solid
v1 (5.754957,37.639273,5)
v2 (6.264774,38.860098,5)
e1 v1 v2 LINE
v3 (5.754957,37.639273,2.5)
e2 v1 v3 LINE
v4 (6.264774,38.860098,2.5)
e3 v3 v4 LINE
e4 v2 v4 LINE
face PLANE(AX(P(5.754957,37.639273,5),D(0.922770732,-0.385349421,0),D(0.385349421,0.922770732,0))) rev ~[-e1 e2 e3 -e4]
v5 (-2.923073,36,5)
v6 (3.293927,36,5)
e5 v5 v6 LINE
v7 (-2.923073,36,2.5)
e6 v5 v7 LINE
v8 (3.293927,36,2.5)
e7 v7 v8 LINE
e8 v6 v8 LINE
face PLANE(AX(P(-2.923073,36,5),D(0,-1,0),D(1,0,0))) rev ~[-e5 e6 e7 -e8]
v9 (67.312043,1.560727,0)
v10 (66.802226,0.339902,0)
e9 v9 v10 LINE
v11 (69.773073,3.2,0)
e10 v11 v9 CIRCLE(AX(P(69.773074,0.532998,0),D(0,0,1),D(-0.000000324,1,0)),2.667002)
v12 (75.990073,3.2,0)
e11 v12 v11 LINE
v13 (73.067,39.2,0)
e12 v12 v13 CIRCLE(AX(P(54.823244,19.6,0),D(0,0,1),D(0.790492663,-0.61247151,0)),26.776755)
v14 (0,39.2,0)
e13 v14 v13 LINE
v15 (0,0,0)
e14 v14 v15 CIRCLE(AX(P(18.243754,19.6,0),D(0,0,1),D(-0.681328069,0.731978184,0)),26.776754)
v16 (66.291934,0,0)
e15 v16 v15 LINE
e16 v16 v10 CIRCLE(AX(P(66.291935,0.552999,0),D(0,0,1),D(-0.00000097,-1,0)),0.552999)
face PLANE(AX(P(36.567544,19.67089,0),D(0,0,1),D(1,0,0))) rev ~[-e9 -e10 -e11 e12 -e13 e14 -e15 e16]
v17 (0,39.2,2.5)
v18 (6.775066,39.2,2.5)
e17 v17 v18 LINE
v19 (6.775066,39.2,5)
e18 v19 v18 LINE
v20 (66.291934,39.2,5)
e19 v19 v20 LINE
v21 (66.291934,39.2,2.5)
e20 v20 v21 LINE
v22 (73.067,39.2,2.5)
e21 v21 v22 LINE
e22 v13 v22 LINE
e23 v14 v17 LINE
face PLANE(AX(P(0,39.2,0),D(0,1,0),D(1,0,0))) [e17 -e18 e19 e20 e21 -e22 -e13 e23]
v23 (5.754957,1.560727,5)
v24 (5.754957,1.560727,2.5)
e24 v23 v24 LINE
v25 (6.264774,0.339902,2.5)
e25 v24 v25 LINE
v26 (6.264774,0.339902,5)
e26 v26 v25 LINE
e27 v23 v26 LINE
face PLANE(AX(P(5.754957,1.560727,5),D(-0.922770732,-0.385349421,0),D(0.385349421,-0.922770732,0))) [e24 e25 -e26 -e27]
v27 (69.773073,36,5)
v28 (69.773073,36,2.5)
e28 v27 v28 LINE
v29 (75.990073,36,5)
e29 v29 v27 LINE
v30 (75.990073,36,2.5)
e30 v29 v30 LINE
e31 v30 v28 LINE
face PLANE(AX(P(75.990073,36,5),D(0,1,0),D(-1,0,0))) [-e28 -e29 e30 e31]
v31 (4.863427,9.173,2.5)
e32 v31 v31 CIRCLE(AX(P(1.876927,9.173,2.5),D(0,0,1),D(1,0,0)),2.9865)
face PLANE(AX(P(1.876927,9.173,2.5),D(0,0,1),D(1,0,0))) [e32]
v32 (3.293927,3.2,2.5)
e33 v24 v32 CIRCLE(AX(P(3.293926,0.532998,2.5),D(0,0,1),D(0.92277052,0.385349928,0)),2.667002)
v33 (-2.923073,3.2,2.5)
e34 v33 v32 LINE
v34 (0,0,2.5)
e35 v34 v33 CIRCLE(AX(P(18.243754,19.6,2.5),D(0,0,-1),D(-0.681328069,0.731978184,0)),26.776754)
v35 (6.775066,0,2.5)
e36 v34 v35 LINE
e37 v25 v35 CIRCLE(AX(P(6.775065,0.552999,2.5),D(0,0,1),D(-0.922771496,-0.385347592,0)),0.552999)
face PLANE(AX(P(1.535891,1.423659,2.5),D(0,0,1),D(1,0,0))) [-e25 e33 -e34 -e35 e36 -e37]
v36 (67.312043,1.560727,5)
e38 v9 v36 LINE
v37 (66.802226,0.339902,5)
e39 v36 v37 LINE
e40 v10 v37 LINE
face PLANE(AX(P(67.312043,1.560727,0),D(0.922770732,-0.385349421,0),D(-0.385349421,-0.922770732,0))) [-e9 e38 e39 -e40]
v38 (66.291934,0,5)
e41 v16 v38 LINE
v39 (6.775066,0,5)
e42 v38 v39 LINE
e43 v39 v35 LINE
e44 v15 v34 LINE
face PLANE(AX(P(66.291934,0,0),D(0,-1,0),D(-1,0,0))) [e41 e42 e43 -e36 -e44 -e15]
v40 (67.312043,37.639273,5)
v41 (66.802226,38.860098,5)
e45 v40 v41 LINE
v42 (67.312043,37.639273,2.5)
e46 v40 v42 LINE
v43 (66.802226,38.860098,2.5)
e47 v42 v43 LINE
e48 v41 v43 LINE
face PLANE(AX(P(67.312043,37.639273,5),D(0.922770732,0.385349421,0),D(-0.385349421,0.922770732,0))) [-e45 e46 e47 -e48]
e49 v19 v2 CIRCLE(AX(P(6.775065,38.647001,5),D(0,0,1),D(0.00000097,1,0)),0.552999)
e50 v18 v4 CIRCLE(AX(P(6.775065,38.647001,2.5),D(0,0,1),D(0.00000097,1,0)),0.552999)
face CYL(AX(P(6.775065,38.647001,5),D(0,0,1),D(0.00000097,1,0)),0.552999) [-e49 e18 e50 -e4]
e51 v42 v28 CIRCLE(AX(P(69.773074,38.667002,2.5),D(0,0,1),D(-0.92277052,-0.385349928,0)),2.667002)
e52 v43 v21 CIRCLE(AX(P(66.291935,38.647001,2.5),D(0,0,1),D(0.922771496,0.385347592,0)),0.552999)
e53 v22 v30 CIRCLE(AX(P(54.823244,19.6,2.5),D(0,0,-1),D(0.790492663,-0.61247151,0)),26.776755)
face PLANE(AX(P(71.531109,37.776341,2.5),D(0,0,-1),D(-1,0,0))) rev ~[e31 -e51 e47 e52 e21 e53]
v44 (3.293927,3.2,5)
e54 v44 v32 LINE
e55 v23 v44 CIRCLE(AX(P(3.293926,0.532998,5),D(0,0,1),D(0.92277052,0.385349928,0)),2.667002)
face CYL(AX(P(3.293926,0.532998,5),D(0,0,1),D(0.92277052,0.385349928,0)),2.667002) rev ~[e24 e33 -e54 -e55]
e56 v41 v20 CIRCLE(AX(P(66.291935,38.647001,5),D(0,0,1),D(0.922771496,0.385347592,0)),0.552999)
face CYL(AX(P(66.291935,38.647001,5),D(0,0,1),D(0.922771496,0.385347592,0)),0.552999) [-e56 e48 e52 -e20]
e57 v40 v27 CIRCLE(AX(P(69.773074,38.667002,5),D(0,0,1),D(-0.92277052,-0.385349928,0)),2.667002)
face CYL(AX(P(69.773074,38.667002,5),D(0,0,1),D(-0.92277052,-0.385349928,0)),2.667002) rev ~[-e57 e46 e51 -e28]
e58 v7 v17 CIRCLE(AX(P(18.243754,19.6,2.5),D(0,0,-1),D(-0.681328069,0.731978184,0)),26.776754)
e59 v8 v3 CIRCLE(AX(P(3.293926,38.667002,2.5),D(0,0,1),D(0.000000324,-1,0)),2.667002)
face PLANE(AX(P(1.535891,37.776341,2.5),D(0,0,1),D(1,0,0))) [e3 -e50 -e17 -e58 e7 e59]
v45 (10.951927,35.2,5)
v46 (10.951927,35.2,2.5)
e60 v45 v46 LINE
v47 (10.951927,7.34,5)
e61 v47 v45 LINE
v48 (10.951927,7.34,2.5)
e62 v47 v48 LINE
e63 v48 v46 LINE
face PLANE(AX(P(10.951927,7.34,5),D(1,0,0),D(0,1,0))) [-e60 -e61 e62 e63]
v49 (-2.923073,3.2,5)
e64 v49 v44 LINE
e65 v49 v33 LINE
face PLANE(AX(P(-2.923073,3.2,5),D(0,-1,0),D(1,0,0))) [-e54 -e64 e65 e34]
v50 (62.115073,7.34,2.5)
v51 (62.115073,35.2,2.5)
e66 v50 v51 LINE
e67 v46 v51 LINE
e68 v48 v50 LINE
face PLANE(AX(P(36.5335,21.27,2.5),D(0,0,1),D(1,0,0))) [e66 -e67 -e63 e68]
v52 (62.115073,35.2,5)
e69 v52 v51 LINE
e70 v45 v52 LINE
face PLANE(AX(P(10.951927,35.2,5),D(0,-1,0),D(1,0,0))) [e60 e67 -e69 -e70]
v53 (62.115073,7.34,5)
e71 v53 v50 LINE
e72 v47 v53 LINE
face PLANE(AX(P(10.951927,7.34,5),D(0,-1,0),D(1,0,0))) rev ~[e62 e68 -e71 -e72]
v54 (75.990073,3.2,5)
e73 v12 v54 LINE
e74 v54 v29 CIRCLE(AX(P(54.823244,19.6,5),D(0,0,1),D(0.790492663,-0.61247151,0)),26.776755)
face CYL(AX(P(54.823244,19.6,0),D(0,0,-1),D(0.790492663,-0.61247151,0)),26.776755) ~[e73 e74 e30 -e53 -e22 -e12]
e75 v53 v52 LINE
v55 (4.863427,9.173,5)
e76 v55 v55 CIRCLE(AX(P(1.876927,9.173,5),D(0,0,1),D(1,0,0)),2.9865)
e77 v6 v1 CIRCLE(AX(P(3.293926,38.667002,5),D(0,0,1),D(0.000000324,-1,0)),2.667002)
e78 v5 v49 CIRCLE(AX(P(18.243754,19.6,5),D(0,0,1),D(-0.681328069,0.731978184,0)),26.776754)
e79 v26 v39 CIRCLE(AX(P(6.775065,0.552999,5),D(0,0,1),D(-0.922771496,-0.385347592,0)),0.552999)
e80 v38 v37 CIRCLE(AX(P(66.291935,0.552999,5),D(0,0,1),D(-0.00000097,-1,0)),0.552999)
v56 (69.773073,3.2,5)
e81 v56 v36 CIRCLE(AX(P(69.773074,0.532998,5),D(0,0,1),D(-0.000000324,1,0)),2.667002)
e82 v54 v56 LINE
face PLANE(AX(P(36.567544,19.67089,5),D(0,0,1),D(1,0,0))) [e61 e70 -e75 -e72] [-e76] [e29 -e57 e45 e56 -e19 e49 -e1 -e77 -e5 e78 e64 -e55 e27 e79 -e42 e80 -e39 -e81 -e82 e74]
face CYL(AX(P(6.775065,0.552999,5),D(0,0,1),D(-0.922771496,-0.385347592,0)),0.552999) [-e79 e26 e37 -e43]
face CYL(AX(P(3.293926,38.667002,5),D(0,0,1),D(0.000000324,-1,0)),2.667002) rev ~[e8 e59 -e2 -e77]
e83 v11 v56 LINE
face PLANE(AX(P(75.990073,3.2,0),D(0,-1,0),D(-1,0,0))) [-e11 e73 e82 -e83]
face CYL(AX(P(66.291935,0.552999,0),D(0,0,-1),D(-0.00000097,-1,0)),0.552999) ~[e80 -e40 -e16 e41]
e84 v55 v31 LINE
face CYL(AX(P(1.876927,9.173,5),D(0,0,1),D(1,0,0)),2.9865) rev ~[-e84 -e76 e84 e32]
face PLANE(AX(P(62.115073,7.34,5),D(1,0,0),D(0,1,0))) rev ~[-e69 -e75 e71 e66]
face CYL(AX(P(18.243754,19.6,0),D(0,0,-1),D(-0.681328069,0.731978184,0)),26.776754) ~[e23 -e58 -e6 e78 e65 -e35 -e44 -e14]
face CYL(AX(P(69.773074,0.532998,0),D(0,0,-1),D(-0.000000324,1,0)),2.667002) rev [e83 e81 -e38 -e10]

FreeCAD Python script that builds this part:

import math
import FreeCAD as App
import Part
import Sketcher


def add_polygon(sketch, points):
    """Adds a closed chain of lines whose ends are joined by coincident constraints."""
    first, n = sketch.GeometryCount, len(points)
    for a, b in zip(points, points[1:] + points[:1]):
        sketch.addGeometry(Part.LineSegment(App.Vector(*a, 0), App.Vector(*b, 0)), False)
    for i in range(n):
        sketch.addConstraint(Sketcher.Constraint("Coincident", first + i, 2, first + (i + 1) % n, 1))

doc = App.newDocument("Part")
params = doc.addObject("Spreadsheet::Sheet", "Params")
for row, (alias, value) in enumerate([
    ("pad1_length", "5 mm"),
    ("sketch2_height", "3.2 mm"),
    ("pocket1_length", "2.5 mm"),
    ("sketch3_height", "27.86 mm"),
    ("pocket2_length", "2.5 mm"),
], start=1):
    params.set(f"A{row}", alias)
    params.set(f"B{row}", "=" + value)
    params.setAlias(f"B{row}", alias)

body = doc.addObject("PartDesign::Body", "Body")

# Sketch on XY plane
sketch1 = doc.addObject("Sketcher::SketchObject", "Sketch")
body.addObject(sketch1)
sketch1.AttachmentSupport = (doc.XY_Plane, [""])
sketch1.MapMode = "FlatFace"
sketch1.addGeometry(Part.ArcOfCircle(Part.Circle(App.Vector(18.2, 19.6, 0), App.Vector(0, 0, 1), 26.8), math.radians(133), math.radians(227)), False)
sketch1.addGeometry(Part.LineSegment(App.Vector(0, 0, 0), App.Vector(66.3, 0, 0)), False)
sketch1.addGeometry(Part.ArcOfCircle(Part.Circle(App.Vector(66.3, 0.6, 0), App.Vector(0, 0, 1), 0.6), math.radians(-90), math.radians(-23)), False)
sketch1.addGeometry(Part.LineSegment(App.Vector(66.8, 0.3, 0), App.Vector(67.3, 1.6, 0)), False)
sketch1.addGeometry(Part.ArcOfCircle(Part.Circle(App.Vector(69.8, 0.5, 0), App.Vector(0, 0, 1), 2.7), math.radians(90), math.radians(157)), False)
sketch1.addGeometry(Part.LineSegment(App.Vector(69.8, 3.2, 0), App.Vector(76, 3.2, 0)), False)
sketch1.addGeometry(Part.ArcOfCircle(Part.Circle(App.Vector(54.8, 19.6, 0), App.Vector(0, 0, 1), 26.8), math.radians(-38), math.radians(47)), False)
sketch1.addGeometry(Part.LineSegment(App.Vector(73.1, 39.2, 0), App.Vector(0, 39.2, 0)), False)
sketch1.addConstraint(Sketcher.Constraint("Coincident", 0, 2, 1, 1))
sketch1.addConstraint(Sketcher.Constraint("Tangent", 1, 2, 2, 1))
sketch1.addConstraint(Sketcher.Constraint("Tangent", 2, 2, 3, 1))
sketch1.addConstraint(Sketcher.Constraint("Tangent", 3, 2, 4, 2))
sketch1.addConstraint(Sketcher.Constraint("Tangent", 4, 1, 5, 1))
sketch1.addConstraint(Sketcher.Constraint("Coincident", 5, 2, 6, 1))
sketch1.addConstraint(Sketcher.Constraint("Coincident", 6, 2, 7, 1))
sketch1.addConstraint(Sketcher.Constraint("Coincident", 7, 2, 0, 1))
sketch1.addConstraint(Sketcher.Constraint("Horizontal", 1))
sketch1.addConstraint(Sketcher.Constraint("Horizontal", 5))
sketch1.addConstraint(Sketcher.Constraint("Horizontal", 7))
sketch1.addConstraint(Sketcher.Constraint("Coincident", 0, 2, -1, 1))
sketch1.addConstraint(Sketcher.Constraint("Equal", 0, 6))
sketch1.addConstraint(Sketcher.Constraint("PointOnObject", 7, 2, -2))
sketch1.addConstraint(Sketcher.Constraint("Horizontal", 0, 3, 6, 3))
sketch1.addConstraint(Sketcher.Constraint("Radius", 2, 0.552999))
sketch1.addConstraint(Sketcher.Constraint("DistanceY", 5, 2, 6, 2, 36.0))
sketch1.addConstraint(Sketcher.Constraint("DistanceY", -1, 1, 0, 3, 19.6))
sketch1.addConstraint(Sketcher.Constraint("DistanceX", 5, 1, 5, 2, 6.217))
sketch1.addConstraint(Sketcher.Constraint("DistanceX", 7, 2, 7, 1, 73.067))
sketch1.addConstraint(Sketcher.Constraint("DistanceY", 4, 3, 2, 3, 0.020001))
sketch1.addConstraint(Sketcher.Constraint("Distance", 3, 1.322999))
sketch1.addConstraint(Sketcher.Constraint("Radius", 0, 26.776754))
pad1 = doc.addObject("PartDesign::Pad", "Pad")
body.addObject(pad1)
pad1.Profile = sketch1
pad1.setExpression("Length", "Params.pad1_length")

# Sketch on XY plane
sketch2 = doc.addObject("Sketcher::SketchObject", "Sketch001")
body.addObject(sketch2)
sketch2.AttachmentSupport = (doc.XY_Plane, [""])
sketch2.MapMode = "FlatFace"
sketch2.AttachmentOffset = App.Placement(App.Vector(0, 0, 5), App.Rotation())
sketch2.addGeometry(Part.LineSegment(App.Vector(-2.9, 36, 0), App.Vector(3.3, 36, 0)), False)
sketch2.addGeometry(Part.ArcOfCircle(Part.Circle(App.Vector(3.3, 38.7, 0), App.Vector(0, 0, 1), 2.7), math.radians(-90), math.radians(-23)), False)
sketch2.addGeometry(Part.LineSegment(App.Vector(5.8, 37.6, 0), App.Vector(6.3, 38.9, 0)), False)
sketch2.addGeometry(Part.ArcOfCircle(Part.Circle(App.Vector(6.8, 38.6, 0), App.Vector(0, 0, 1), 0.6), math.radians(90), math.radians(157)), False)
sketch2.addGeometry(Part.LineSegment(App.Vector(6.8, 39.2, 0), App.Vector(-2.9, 39.2, 0)), False)
sketch2.addGeometry(Part.LineSegment(App.Vector(-2.9, 39.2, 0), App.Vector(-2.9, 36, 0)), False)
sketch2.addGeometry(Part.LineSegment(App.Vector(69.8, 36, 0), App.Vector(76, 36, 0)), False)
sketch2.addGeometry(Part.LineSegment(App.Vector(76, 36, 0), App.Vector(76, 39.2, 0)), False)
sketch2.addGeometry(Part.LineSegment(App.Vector(76, 39.2, 0), App.Vector(66.3, 39.2, 0)), False)
sketch2.addGeometry(Part.ArcOfCircle(Part.Circle(App.Vector(66.3, 38.6, 0), App.Vector(0, 0, 1), 0.6), math.radians(23), math.radians(90)), False)
sketch2.addGeometry(Part.LineSegment(App.Vector(66.8, 38.9, 0), App.Vector(67.3, 37.6, 0)), False)
sketch2.addGeometry(Part.ArcOfCircle(Part.Circle(App.Vector(69.8, 38.7, 0), App.Vector(0, 0, 1), 2.7), math.radians(-157), math.radians(-90)), False)
sketch2.addGeometry(Part.LineSegment(App.Vector(-2.9, 3.2, 0), App.Vector(-2.9, 0, 0)), False)
sketch2.addGeometry(Part.LineSegment(App.Vector(-2.9, 0, 0), App.Vector(6.8, 0, 0)), False)
sketch2.addGeometry(Part.ArcOfCircle(Part.Circle(App.Vector(6.8, 0.6, 0), App.Vector(0, 0, 1), 0.6), math.radians(-157), math.radians(-90)), False)
sketch2.addGeometry(Part.LineSegment(App.Vector(6.3, 0.3, 0), App.Vector(5.8, 1.6, 0)), False)
sketch2.addGeometry(Part.ArcOfCircle(Part.Circle(App.Vector(3.3, 0.5, 0), App.Vector(0, 0, 1), 2.7), math.radians(23), math.radians(90)), False)
sketch2.addGeometry(Part.LineSegment(App.Vector(3.3, 3.2, 0), App.Vector(-2.9, 3.2, 0)), False)
sketch2.addConstraint(Sketcher.Constraint("Tangent", 0, 2, 1, 1))
sketch2.addConstraint(Sketcher.Constraint("Tangent", 1, 2, 2, 1))
sketch2.addConstraint(Sketcher.Constraint("Tangent", 2, 2, 3, 2))
sketch2.addConstraint(Sketcher.Constraint("Tangent", 3, 1, 4, 1))
sketch2.addConstraint(Sketcher.Constraint("Coincident", 4, 2, 5, 1))
sketch2.addConstraint(Sketcher.Constraint("Coincident", 5, 2, 0, 1))
sketch2.addConstraint(Sketcher.Constraint("Coincident", 6, 2, 7, 1))
sketch2.addConstraint(Sketcher.Constraint("Coincident", 7, 2, 8, 1))
sketch2.addConstraint(Sketcher.Constraint("Tangent", 8, 2, 9, 2))
sketch2.addConstraint(Sketcher.Constraint("Tangent", 9, 1, 10, 1))
sketch2.addConstraint(Sketcher.Constraint("Tangent", 10, 2, 11, 1))
sketch2.addConstraint(Sketcher.Constraint("Tangent", 11, 2, 6, 1))
sketch2.addConstraint(Sketcher.Constraint("Coincident", 12, 2, 13, 1))
sketch2.addConstraint(Sketcher.Constraint("Tangent", 13, 2, 14, 2))
sketch2.addConstraint(Sketcher.Constraint("Tangent", 14, 1, 15, 1))
sketch2.addConstraint(Sketcher.Constraint("Tangent", 15, 2, 16, 1))
sketch2.addConstraint(Sketcher.Constraint("Tangent", 16, 2, 17, 1))
sketch2.addConstraint(Sketcher.Constraint("Coincident", 17, 2, 12, 1))
sketch2.addConstraint(Sketcher.Constraint("Horizontal", 0))
sketch2.addConstraint(Sketcher.Constraint("Horizontal", 4))
sketch2.addConstraint(Sketcher.Constraint("Vertical", 5))
sketch2.addConstraint(Sketcher.Constraint("Horizontal", 6))
sketch2.addConstraint(Sketcher.Constraint("Vertical", 7))
sketch2.addConstraint(Sketcher.Constraint("Horizontal", 8))
sketch2.addConstraint(Sketcher.Constraint("Vertical", 12))
sketch2.addConstraint(Sketcher.Constraint("Horizontal", 13))
sketch2.addConstraint(Sketcher.Constraint("Horizontal", 17))
sketch2.addConstraint(Sketcher.Constraint("Equal", 3, 9))
sketch2.addConstraint(Sketcher.Constraint("Equal", 1, 11))
sketch2.addConstraint(Sketcher.Constraint("Equal", 9, 14))
sketch2.addConstraint(Sketcher.Constraint("Equal", 11, 16))
sketch2.addConstraint(Sketcher.Constraint("PointOnObject", 12, 2, -1))
sketch2.addConstraint(Sketcher.Constraint("Parallel", 10, 15))
sketch2.addConstraint(Sketcher.Constraint("Horizontal", 3, 3, 9, 3))
sketch2.addConstraint(Sketcher.Constraint("Horizontal", 1, 3, 11, 3))
sketch2.addConstraint(Sketcher.Constraint("Horizontal", 2, 2, 9, 1))
sketch2.addConstraint(Sketcher.Constraint("Vertical", 3, 3, 14, 3))
sketch2.addConstraint(Sketcher.Constraint("Vertical", 1, 3, 16, 3))
sketch2.addConstraint(Sketcher.Constraint("Vertical", 5, 2, 12, 2))
sketch2.addConstraint(Sketcher.Constraint("Equal", 0, 6))
sketch2.addConstraint(Sketcher.Constraint("DistanceY", 5, 2, 5, 1, 3.2))
sketch2.addConstraint(Sketcher.Constraint("DistanceY", -1, 1, 0, 2, 36.0))
sketch2.addConstraint(Sketcher.Constraint("Radius", 3, 0.552999))
sketch2.addConstraint(Sketcher.Constraint("DistanceX", 0, 1, 0, 2, 6.217))
sketch2.addConstraint(Sketcher.Constraint("DistanceY", 3, 3, 1, 3, 0.020001))
sketch2.addConstraint(Sketcher.Constraint("Distance", 2, 1.322999))
sketch2.addConstraint(Sketcher.Constraint("DistanceX", 2, 2, 6, 2, 69.725299))
sketch2.addConstraint(Sketcher.Constraint("DistanceX", -1, 1, 1, 3, 3.293926))
sketch2.setExpression("Constraints[40]", "Params.sketch2_height")
pocket1 = doc.addObject("PartDesign::Pocket", "Pocket")
body.addObject(pocket1)
pocket1.Profile = sketch2
pocket1.setExpression("Length", "Params.pocket1_length")

# Sketch on XY plane
sketch3 = doc.addObject("Sketcher::SketchObject", "Sketch002")
body.addObject(sketch3)
sketch3.AttachmentSupport = (doc.XY_Plane, [""])
sketch3.MapMode = "FlatFace"
sketch3.AttachmentOffset = App.Placement(App.Vector(0, 0, 5), App.Rotation())
sketch3.addGeometry(Part.Circle(App.Vector(1.9, 9.2, 0), App.Vector(0, 0, 1), 3), False)  # 0
add_polygon(sketch3, [(11, 35.2), (11, 7.3), (62.1, 7.3), (62.1, 35.2)])  # lines 1-4
sketch3.addConstraint(Sketcher.Constraint("Vertical", 1))
sketch3.addConstraint(Sketcher.Constraint("Horizontal", 2))
sketch3.addConstraint(Sketcher.Constraint("Vertical", 3))
sketch3.addConstraint(Sketcher.Constraint("Horizontal", 4))
sketch3.addConstraint(Sketcher.Constraint("Diameter", 0, 5.973))
sketch3.addConstraint(Sketcher.Constraint("DistanceY", 1, 2, 1, 1, 27.86))
sketch3.addConstraint(Sketcher.Constraint("DistanceY", -1, 1, 3, 2, 35.2))
sketch3.addConstraint(Sketcher.Constraint("DistanceY", -1, 1, 0, 3, 9.173))
sketch3.addConstraint(Sketcher.Constraint("DistanceX", 0, 3, 1, 2, 9.075))
sketch3.addConstraint(Sketcher.Constraint("DistanceX", 2, 1, 2, 2, 51.163146))
sketch3.addConstraint(Sketcher.Constraint("DistanceX", -1, 1, 0, 3, 1.876927))
sketch3.setExpression("Constraints[9]", "Params.sketch3_height")
pocket2 = doc.addObject("PartDesign::Pocket", "Pocket001")
body.addObject(pocket2)
pocket2.Profile = sketch3
pocket2.setExpression("Length", "Params.pocket2_length")

doc.recompute()
